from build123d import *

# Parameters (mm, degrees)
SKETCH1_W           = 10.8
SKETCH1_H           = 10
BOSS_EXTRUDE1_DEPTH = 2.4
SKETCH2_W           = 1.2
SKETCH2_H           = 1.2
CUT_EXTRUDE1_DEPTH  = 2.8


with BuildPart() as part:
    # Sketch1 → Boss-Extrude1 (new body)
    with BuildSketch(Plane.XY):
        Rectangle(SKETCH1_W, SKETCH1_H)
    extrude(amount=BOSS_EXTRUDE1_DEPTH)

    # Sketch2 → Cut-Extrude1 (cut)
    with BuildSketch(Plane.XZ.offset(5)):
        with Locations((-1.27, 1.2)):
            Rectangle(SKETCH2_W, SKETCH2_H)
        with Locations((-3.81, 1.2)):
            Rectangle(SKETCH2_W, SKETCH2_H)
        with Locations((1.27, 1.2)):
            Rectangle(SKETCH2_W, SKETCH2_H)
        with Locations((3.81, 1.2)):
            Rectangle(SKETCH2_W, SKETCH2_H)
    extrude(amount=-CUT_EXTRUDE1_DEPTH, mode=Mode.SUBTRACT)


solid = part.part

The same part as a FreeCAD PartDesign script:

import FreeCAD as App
import Part
import Sketcher
Q = App.Units.Quantity


def add_polygon(sketch, points):
    """Adds a closed chain of lines whose ends are joined by coincident constraints."""
    first, n = sketch.GeometryCount, len(points)
    for a, b in zip(points, points[1:] + points[:1]):
        sketch.addGeometry(Part.LineSegment(App.Vector(*a, 0), App.Vector(*b, 0)), False)
    for i in range(n):
        sketch.addConstraint(Sketcher.Constraint("Coincident", first + i, 2, first + (i + 1) % n, 1))

doc = App.newDocument("Part")
body = doc.addObject("PartDesign::Body", "Body")

# Sketch on XY plane
sketch1 = body.newObject("Sketcher::SketchObject", "Sketch")
sketch1.AttachmentSupport = (doc.getObject("XY_Plane"), [""])
sketch1.MapMode = "FlatFace"
add_polygon(sketch1, [(-5, 5), (-5, -5), (5, -5), (5, 5)])  # lines 0-3
sketch1.addConstraint([
    Sketcher.Constraint("Vertical", 0),
    Sketcher.Constraint("Horizontal", 1),
    Sketcher.Constraint("Vertical", 2),
    Sketcher.Constraint("Horizontal", 3),
    Sketcher.Constraint("Symmetric", 0, 2, 2, 2, -1, 1),
    Sketcher.Constraint("DistanceY", 0, 2, 0, 1, Q("10 mm")),
    Sketcher.Constraint("DistanceX", 1, 1, 1, 2, Q("10.8 mm")),
])
pad1 = body.newObject("PartDesign::Pad", "Pad")
pad1.Profile = sketch1
pad1.Length = 2.4

# Sketch on XZ plane
sketch2 = body.newObject("Sketcher::SketchObject", "Sketch001")
sketch2.AttachmentSupport = (doc.getObject("XZ_Plane"), [""])
sketch2.MapMode = "FlatFace"
sketch2.AttachmentOffset = App.Placement(App.Vector(0, 0, 5), App.Rotation())
add_polygon(sketch2, [(-1.9, 1.8), (-1.9, 0.6), (-0.7, 0.6), (-0.7, 1.8)])  # lines 0-3
add_polygon(sketch2, [(-4.4, 1.8), (-4.4, 0.6), (-3.2, 0.6), (-3.2, 1.8)])  # lines 4-7
add_polygon(sketch2, [(0.7, 1.8), (0.7, 0.6), (1.9, 0.6), (1.9, 1.8)])  # lines 8-11
add_polygon(sketch2, [(3.2, 1.8), (3.2, 0.6), (4.4, 0.6), (4.4, 1.8)])  # lines 12-15
sketch2.addConstraint([
    Sketcher.Constraint("Vertical", 0),
    Sketcher.Constraint("Horizontal", 1),
    Sketcher.Constraint("Vertical", 2),
    Sketcher.Constraint("Horizontal", 3),
    Sketcher.Constraint("Vertical", 4),
    Sketcher.Constraint("Horizontal", 5),
    Sketcher.Constraint("Vertical", 6),
    Sketcher.Constraint("Horizontal", 7),
    Sketcher.Constraint("Vertical", 8),
    Sketcher.Constraint("Horizontal", 9),
    Sketcher.Constraint("Vertical", 10),
    Sketcher.Constraint("Horizontal", 11),
    Sketcher.Constraint("Vertical", 12),
    Sketcher.Constraint("Horizontal", 13),
    Sketcher.Constraint("Vertical", 14),
    Sketcher.Constraint("Horizontal", 15),
    Sketcher.Constraint("Symmetric", 1, 2, 8, 2, -2),
    Sketcher.Constraint("Symmetric", 3, 2, 10, 2, -2),
    Sketcher.Constraint("Symmetric", 5, 2, 12, 2, -2),
    Sketcher.Constraint("Symmetric", 7, 2, 14, 2, -2),
    Sketcher.Constraint("Horizontal", 1, 2, 4, 2),
    Sketcher.Constraint("Horizontal", 3, 2, 6, 2),
    Sketcher.Constraint("Equal", 3, 5),
    Sketcher.Constraint("Equal", 15, 0),
    Sketcher.Constraint("DistanceX", 1, 1, 1, 2, Q("1.2 mm")),
    Sketcher.Constraint("DistanceY", -1, 1, 0, 2, Q("0.6 mm")),
    Sketcher.Constraint("DistanceX", 0, 2, -1, 1, Q("1.87 mm")),
    Sketcher.Constraint("DistanceX", 4, 2, -1, 1, Q("4.41 mm")),
])
pocket1 = body.newObject("PartDesign::Pocket", "Pocket")
pocket1.Profile = sketch2
pocket1.Length = 2.8

doc.recompute()
